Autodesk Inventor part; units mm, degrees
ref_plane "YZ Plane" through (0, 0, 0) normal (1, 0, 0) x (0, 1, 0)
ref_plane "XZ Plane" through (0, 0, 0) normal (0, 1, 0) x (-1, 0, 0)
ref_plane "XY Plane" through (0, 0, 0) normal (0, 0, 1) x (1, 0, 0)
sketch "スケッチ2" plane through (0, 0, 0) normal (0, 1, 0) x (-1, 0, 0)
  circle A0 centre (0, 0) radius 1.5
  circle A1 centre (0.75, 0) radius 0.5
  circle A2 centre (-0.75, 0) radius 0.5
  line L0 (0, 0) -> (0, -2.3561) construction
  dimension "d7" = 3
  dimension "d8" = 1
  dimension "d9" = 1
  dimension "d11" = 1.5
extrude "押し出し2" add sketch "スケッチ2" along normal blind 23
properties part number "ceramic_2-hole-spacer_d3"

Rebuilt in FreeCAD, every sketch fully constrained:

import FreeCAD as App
import Part
import Sketcher

V = App.Vector

doc = App.newDocument("Part")
body = doc.addObject("PartDesign::Body", "Body")

# Sketch on XZ plane
sketch1 = doc.addObject("Sketcher::SketchObject", "Sketch")
body.addObject(sketch1)
sketch1.AttachmentSupport = (doc.XZ_Plane, [""])
sketch1.MapMode = "FlatFace"
sketch1.addGeometry([
    Part.Circle(V(0, 0, 0), V(0, 0, 1), 1.5),
    Part.Circle(V(0.75, 0, 0), V(0, 0, 1), 0.5),
    Part.Circle(V(-0.75, 0, 0), V(0, 0, 1), 0.5),
], False)
sketch1.addConstraint([
    Sketcher.Constraint("Coincident", 0, 3, -1, 1),
    Sketcher.Constraint("Equal", 1, 2),
    Sketcher.Constraint("Symmetric", 1, 3, 2, 3, -1, 1),
    Sketcher.Constraint("PointOnObject", 1, 3, -1),
    Sketcher.Constraint("Diameter", 0, 3.0),
    Sketcher.Constraint("Diameter", 1, 1.0),
    Sketcher.Constraint("DistanceX", 2, 3, 1, 3, 1.5),
])
pad1 = doc.addObject("PartDesign::Pad", "Pad")
body.addObject(pad1)
pad1.Profile = sketch1
pad1.Length = 23
pad1.Reversed = True

doc.recompute()
